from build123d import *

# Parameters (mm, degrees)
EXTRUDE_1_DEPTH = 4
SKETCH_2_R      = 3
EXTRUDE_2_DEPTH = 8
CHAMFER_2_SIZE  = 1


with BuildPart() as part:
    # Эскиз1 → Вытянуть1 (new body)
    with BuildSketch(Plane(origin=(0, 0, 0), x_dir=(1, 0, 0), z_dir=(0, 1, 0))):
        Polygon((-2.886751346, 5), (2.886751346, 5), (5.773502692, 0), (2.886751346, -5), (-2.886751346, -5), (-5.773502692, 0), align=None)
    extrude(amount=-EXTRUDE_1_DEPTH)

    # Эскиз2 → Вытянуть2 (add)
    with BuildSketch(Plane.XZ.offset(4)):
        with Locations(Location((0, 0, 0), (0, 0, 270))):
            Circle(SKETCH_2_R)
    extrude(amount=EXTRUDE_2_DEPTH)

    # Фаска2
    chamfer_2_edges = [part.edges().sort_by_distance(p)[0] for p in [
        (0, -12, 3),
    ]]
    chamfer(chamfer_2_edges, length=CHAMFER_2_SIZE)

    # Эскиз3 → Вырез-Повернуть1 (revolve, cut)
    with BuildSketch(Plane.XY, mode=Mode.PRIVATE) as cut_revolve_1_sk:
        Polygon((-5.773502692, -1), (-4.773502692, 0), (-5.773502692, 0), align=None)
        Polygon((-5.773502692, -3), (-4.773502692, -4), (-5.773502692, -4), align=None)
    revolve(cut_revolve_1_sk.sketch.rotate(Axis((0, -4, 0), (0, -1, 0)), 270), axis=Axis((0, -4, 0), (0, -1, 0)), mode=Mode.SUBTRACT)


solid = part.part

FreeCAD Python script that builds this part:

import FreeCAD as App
import Part
import Sketcher

V = App.Vector
Q = App.Units.Quantity


def edges_at(feature, points):
    """Names of the edges that pass closest to the given points."""
    edges = feature.Shape.Edges
    near = lambda p: min(range(len(edges)), key=lambda i: edges[i].distToShape(Part.Vertex(*p))[0])
    return sorted({f"Edge{near(p) + 1}" for p in points})

doc = App.newDocument("Part")
body = doc.addObject("PartDesign::Body", "Body")

# Sketch on XZ plane
sketch1 = body.newObject("Sketcher::SketchObject", "Sketch")
sketch1.AttachmentSupport = (doc.getObject("XZ_Plane"), [""])
sketch1.MapMode = "FlatFace"
sketch1.addGeometry([
    Part.LineSegment(V(3, -5, 0), V(-3, -5, 0)),  # 0
    Part.LineSegment(V(-3, -5, 0), V(-6, 0, 0)),  # 1
    Part.LineSegment(V(-6, 0, 0), V(-3, 5, 0)),  # 2
    Part.LineSegment(V(-3, 5, 0), V(3, 5, 0)),  # 3
    Part.LineSegment(V(3, 5, 0), V(6, 0, 0)),  # 4
    Part.LineSegment(V(6, 0, 0), V(3, -5, 0)),  # 5
], False)
sketch1.addConstraint([
    Sketcher.Constraint("Coincident", 0, 2, 1, 1),
    Sketcher.Constraint("Coincident", 1, 2, 2, 1),
    Sketcher.Constraint("Coincident", 2, 2, 3, 1),
    Sketcher.Constraint("Coincident", 3, 2, 4, 1),
    Sketcher.Constraint("Coincident", 4, 2, 5, 1),
    Sketcher.Constraint("Coincident", 5, 2, 0, 1),
    Sketcher.Constraint("Horizontal", 0),
    Sketcher.Constraint("Horizontal", 3),
    Sketcher.Constraint("Symmetric", 0, 2, 3, 2, -1, 1),
    Sketcher.Constraint("Symmetric", 1, 2, 4, 2, -1, 1),
    Sketcher.Constraint("PointOnObject", 1, 2, -1),
    Sketcher.Constraint("Parallel", 2, 5),
    Sketcher.Constraint("Vertical", 0, 2, 2, 2),
    Sketcher.Constraint("Angle", 1, Q("120 deg")),
    Sketcher.Constraint("DistanceY", 0, 2, -1, 1, 5.0),
    Sketcher.Constraint("DistanceX", 0, 2, 0, 1, 5.773503),
])
pad1 = body.newObject("PartDesign::Pad", "Pad")
pad1.Profile = sketch1
pad1.Length = 4

# Sketch on XZ plane
sketch2 = body.newObject("Sketcher::SketchObject", "Sketch001")
sketch2.AttachmentSupport = (doc.getObject("XZ_Plane"), [""])
sketch2.MapMode = "FlatFace"
sketch2.AttachmentOffset = App.Placement(V(0, 0, 4), App.Rotation())
sketch2.addGeometry(Part.Circle(V(0, 0, 0), V(0, 0, 1), 3), False)
sketch2.addConstraint([
    Sketcher.Constraint("Coincident", 0, 3, -1, 1),
    Sketcher.Constraint("Diameter", 0, 6.0),
])
pad2 = body.newObject("PartDesign::Pad", "Pad001")
pad2.Profile = sketch2
pad2.Length = 8
doc.recompute()

chamfer = body.newObject("PartDesign::Chamfer", "Chamfer")
chamfer.Base = (pad2, edges_at(pad2, [(0, -12, 3)]))
chamfer.Size = 1

# Sketch on XY plane
sketch3 = body.newObject("Sketcher::SketchObject", "Sketch002")
sketch3.AttachmentSupport = (doc.getObject("XY_Plane"), [""])
sketch3.MapMode = "FlatFace"
sketch3.addGeometry([
    Part.LineSegment(V(-5.8, -1, 0), V(-4.8, 0, 0)),  # 0
    Part.LineSegment(V(-4.8, 0, 0), V(-5.8, 0, 0)),  # 1
    Part.LineSegment(V(-5.8, 0, 0), V(-5.8, -1, 0)),  # 2
    Part.LineSegment(V(-4.8, -4, 0), V(-5.8, -3, 0)),  # 3
    Part.LineSegment(V(-5.8, -3, 0), V(-5.8, -4, 0)),  # 4
    Part.LineSegment(V(-5.8, -4, 0), V(-4.8, -4, 0)),  # 5
], False)
sketch3.addConstraint([
    Sketcher.Constraint("Coincident", 0, 2, 1, 1),
    Sketcher.Constraint("Coincident", 1, 2, 2, 1),
    Sketcher.Constraint("Coincident", 2, 2, 0, 1),
    Sketcher.Constraint("Coincident", 3, 2, 4, 1),
    Sketcher.Constraint("Coincident", 4, 2, 5, 1),
    Sketcher.Constraint("Coincident", 5, 2, 3, 1),
    Sketcher.Constraint("Horizontal", 1),
    Sketcher.Constraint("Vertical", 2),
    Sketcher.Constraint("Vertical", 4),
    Sketcher.Constraint("Horizontal", 5),
    Sketcher.Constraint("PointOnObject", 0, 2, -1),
    Sketcher.Constraint("Perpendicular", 0, 3),
    Sketcher.Constraint("Vertical", 2, 2, 3, 2),
    Sketcher.Constraint("Vertical", 0, 2, 5, 2),
    Sketcher.Constraint("Equal", 5, 2),
    Sketcher.Constraint("DistanceX", 1, 2, 1, 1, 1.0),
    Sketcher.Constraint("DistanceY", 3, 2, -1, 1, 3.0),
    Sketcher.Constraint("DistanceX", 0, 2, -1, 1, 4.773503),
])
groove = body.newObject("PartDesign::Groove", "Groove")
groove.Profile = sketch3
groove.ReferenceAxis = (sketch3, ["V_Axis"])
groove.Angle = 360

doc.recompute()
